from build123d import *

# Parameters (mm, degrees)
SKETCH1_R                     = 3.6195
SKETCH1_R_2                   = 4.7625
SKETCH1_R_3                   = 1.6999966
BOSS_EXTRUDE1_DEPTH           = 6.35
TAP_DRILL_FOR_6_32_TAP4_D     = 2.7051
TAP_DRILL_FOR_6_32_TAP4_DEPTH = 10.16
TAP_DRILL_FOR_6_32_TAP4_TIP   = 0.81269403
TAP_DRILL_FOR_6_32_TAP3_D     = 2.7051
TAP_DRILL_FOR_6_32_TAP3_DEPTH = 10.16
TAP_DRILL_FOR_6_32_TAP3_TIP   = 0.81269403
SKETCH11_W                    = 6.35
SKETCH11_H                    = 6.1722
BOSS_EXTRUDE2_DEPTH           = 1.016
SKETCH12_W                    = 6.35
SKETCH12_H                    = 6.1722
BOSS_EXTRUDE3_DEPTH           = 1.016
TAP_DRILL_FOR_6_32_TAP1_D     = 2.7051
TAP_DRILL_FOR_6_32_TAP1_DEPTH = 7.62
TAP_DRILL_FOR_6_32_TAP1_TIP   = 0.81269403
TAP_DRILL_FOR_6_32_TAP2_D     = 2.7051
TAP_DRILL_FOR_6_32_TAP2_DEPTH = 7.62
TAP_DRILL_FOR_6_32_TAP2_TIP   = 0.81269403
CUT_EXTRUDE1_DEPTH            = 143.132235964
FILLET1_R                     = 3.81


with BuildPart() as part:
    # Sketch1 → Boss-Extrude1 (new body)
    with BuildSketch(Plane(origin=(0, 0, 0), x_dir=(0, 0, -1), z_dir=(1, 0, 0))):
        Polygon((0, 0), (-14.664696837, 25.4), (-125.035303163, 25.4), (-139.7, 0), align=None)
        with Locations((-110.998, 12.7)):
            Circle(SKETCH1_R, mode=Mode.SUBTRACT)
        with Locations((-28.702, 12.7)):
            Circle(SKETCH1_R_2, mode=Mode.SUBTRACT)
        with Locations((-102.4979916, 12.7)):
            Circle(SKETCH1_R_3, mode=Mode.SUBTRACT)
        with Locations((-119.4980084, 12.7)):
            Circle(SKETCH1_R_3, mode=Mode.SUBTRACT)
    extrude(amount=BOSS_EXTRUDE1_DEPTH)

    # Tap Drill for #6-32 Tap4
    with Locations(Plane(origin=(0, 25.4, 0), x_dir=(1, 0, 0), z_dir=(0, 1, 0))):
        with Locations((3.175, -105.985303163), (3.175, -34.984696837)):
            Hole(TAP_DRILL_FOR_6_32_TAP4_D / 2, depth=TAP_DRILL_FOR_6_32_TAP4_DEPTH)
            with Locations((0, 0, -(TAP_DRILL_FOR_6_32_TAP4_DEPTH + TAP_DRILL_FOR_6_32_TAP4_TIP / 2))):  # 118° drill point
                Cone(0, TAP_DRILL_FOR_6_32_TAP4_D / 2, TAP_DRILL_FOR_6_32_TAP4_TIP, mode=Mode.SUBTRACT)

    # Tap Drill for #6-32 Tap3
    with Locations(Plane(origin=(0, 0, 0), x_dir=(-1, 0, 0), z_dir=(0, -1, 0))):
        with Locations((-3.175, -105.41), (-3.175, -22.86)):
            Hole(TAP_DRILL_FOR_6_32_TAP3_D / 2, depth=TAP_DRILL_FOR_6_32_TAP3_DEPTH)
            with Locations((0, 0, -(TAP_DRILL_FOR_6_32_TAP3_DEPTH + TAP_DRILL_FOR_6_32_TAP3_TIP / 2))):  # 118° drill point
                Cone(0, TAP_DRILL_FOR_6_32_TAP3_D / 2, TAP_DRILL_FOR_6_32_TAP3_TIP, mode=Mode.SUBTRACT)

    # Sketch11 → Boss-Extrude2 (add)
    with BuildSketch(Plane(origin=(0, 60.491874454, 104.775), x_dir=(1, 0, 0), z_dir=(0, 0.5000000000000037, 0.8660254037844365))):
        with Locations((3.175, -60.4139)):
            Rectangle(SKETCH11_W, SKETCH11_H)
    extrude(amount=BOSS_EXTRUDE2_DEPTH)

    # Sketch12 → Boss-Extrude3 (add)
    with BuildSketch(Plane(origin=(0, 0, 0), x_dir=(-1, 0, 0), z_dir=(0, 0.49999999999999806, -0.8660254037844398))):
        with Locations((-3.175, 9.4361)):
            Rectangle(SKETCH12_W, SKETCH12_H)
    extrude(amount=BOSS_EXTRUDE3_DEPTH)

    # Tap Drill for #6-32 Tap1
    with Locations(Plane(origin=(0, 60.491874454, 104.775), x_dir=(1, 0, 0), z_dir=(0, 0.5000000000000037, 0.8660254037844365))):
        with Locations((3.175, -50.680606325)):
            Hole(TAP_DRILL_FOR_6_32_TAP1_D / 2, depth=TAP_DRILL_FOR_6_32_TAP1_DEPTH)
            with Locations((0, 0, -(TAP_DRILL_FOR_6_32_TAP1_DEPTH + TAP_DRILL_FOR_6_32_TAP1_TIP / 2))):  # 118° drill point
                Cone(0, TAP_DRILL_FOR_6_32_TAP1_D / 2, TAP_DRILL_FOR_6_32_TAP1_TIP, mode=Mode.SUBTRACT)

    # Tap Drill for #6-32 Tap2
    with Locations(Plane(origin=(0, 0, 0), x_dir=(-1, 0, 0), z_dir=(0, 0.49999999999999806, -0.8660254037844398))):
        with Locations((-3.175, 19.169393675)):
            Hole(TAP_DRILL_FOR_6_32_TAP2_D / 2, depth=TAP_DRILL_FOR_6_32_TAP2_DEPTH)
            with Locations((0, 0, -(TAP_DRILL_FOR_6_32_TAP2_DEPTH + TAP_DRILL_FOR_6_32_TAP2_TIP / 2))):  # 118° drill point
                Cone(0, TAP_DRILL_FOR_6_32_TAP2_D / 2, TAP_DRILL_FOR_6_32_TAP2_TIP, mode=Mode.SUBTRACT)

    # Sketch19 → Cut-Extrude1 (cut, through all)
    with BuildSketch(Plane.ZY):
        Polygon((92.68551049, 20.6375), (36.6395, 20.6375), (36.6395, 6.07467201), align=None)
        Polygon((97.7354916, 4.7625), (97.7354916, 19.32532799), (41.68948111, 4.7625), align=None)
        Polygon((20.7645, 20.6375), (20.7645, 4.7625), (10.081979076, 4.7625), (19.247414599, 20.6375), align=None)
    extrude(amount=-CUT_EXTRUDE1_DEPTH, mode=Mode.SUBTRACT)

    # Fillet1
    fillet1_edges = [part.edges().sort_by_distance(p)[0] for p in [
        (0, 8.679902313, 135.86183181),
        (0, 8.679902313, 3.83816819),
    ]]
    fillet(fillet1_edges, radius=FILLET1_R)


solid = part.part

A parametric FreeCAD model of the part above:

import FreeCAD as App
import Part
import Sketcher

V = App.Vector
Q = App.Units.Quantity


def edges_at(feature, points):
    """Names of the edges that pass closest to the given points."""
    edges = feature.Shape.Edges
    near = lambda p: min(range(len(edges)), key=lambda i: edges[i].distToShape(Part.Vertex(*p))[0])
    return sorted({f"Edge{near(p) + 1}" for p in points})


def add_polygon(sketch, points):
    """Adds a closed chain of lines whose ends are joined by coincident constraints."""
    first, n = sketch.GeometryCount, len(points)
    for a, b in zip(points, points[1:] + points[:1]):
        sketch.addGeometry(Part.LineSegment(App.Vector(*a, 0), App.Vector(*b, 0)), False)
    for i in range(n):
        sketch.addConstraint(Sketcher.Constraint("Coincident", first + i, 2, first + (i + 1) % n, 1))

doc = App.newDocument("Part")
params = doc.addObject("Spreadsheet::Sheet", "Params")
for row, (alias, value) in enumerate([
    ("sketch1_diameter", "0.285 in"),
    ("sketch1_diameter2", "0.375 in"),
    ("sketch1_height", "5.5 in"),
    ("pad1_length", "0.25 in"),
    ("hole_diameter", "0.1065 in"),
    ("hole_depth", "0.4 in"),
    ("hole2_diameter", "0.1065 in"),
    ("hole2_depth", "0.4 in"),
    ("sketch4_width", "0.25 in"),
    ("sketch4_height", "0.243 in"),
    ("pad2_length", "0.04 in"),
    ("sketch5_width", "0.25 in"),
    ("sketch5_height", "0.243 in"),
    ("pad3_length", "0.04 in"),
    ("hole3_diameter", "0.1065 in"),
    ("hole3_depth", "0.3 in"),
    ("hole4_diameter", "0.1065 in"),
    ("hole4_depth", "0.3 in"),
    ("sketch8_width", "0.625 in"),
    ("fillet_radius", "0.15 in"),
], start=1):
    params.set(f"A{row}", alias)
    params.set(f"B{row}", "=" + value)
    params.setAlias(f"B{row}", alias)

body = doc.addObject("PartDesign::Body", "Body")

# Sketch on YZ plane
sketch1 = body.newObject("Sketcher::SketchObject", "Sketch")
sketch1.AttachmentSupport = (doc.getObject("YZ_Plane"), [""])
sketch1.MapMode = "FlatFace"
add_polygon(sketch1, [(0, 0), (25.4, 14.664697), (25.4, 125.035303), (0, 139.7)])  # lines 0-3
sketch1.addGeometry(Part.Circle(V(12.7, 119.498008, 0), V(0, 0, 1), 1.699997), False)  # 4
sketch1.addGeometry(Part.Circle(V(12.7, 110.998, 0), V(0, 0, 1), 3.6195), False)  # 5
sketch1.addGeometry(Part.Circle(V(12.7, 102.497992, 0), V(0, 0, 1), 1.699997), False)  # 6
sketch1.addGeometry(Part.Circle(V(12.7, 28.702, 0), V(0, 0, 1), 4.7625), False)  # 7
sketch1.addConstraint(Sketcher.Constraint("Vertical", 1))
sketch1.addConstraint(Sketcher.Constraint("Vertical", 3))
sketch1.addConstraint(Sketcher.Constraint("Coincident", 3, 2, -1, 1))
sketch1.addConstraint(Sketcher.Constraint("Equal", 4, 6))
sketch1.addConstraint(Sketcher.Constraint("Vertical", 4, 3, 5, 3))
sketch1.addConstraint(Sketcher.Constraint("Vertical", 5, 3, 6, 3))
sketch1.addConstraint(Sketcher.Constraint("Vertical", 6, 3, 7, 3))
sketch1.addConstraint(Sketcher.Constraint("Equal", 0, 2))
sketch1.addConstraint(Sketcher.Constraint("Diameter", 5, Q("0.285 in")))
sketch1.addConstraint(Sketcher.Constraint("Diameter", 7, Q("0.375 in")))
sketch1.addConstraint(Sketcher.Constraint("DistanceY", 3, 2, 3, 1, Q("5.5 in")))
sketch1.addConstraint(Sketcher.Constraint("DistanceX", -1, 1, 0, 2, Q("1 in")))
sketch1.addConstraint(Sketcher.Constraint("Angle", 0, Q("30 deg")))
sketch1.addConstraint(Sketcher.Constraint("DistanceX", -1, 1, 4, 3, Q("0.5 in")))
sketch1.addConstraint(Sketcher.Constraint("DistanceY", -1, 1, 5, 3, Q("4.37 in")))
sketch1.addConstraint(Sketcher.Constraint("DistanceY", -1, 1, 7, 3, Q("1.13 in")))
sketch1.addConstraint(Sketcher.Constraint("Diameter", 4, Q("3.399993 mm")))
sketch1.addConstraint(Sketcher.Constraint("DistanceY", -1, 1, 4, 3, Q("119.498008 mm")))
sketch1.addConstraint(Sketcher.Constraint("DistanceY", -1, 1, 6, 3, Q("102.497992 mm")))
sketch1.setExpression("Constraints[12]", "Params.sketch1_diameter")
sketch1.setExpression("Constraints[13]", "Params.sketch1_diameter2")
sketch1.setExpression("Constraints[14]", "Params.sketch1_height")
pad1 = body.newObject("PartDesign::Pad", "Pad")
pad1.Profile = sketch1
pad1.setExpression("Length", "Params.pad1_length")

# Sketch on XZ plane
sketch2 = body.newObject("Sketcher::SketchObject", "Sketch001")
sketch2.AttachmentSupport = (doc.getObject("XZ_Plane"), [""])
sketch2.MapMode = "FlatFace"
sketch2.AttachmentOffset = App.Placement(V(0, 0, -1 * 25.4), App.Rotation())
sketch2.addGeometry(Part.Circle(V(3.175, 105.985303, 0), V(0, 0, 1), 1.35255), False)
sketch2.addGeometry(Part.Circle(V(3.175, 34.984697, 0), V(0, 0, 1), 1.35255), False)
sketch2.addConstraint(Sketcher.Constraint("Equal", 0, 1))
sketch2.addConstraint(Sketcher.Constraint("Vertical", 0, 3, 1, 3))
sketch2.addConstraint(Sketcher.Constraint("Diameter", 0, Q("0.1065 in")))
sketch2.addConstraint(Sketcher.Constraint("DistanceX", -1, 1, 0, 3, Q("0.125 in")))
sketch2.addConstraint(Sketcher.Constraint("DistanceY", -1, 1, 0, 3, Q("105.985303 mm")))
sketch2.addConstraint(Sketcher.Constraint("DistanceY", -1, 1, 1, 3, Q("34.984697 mm")))
doc.recompute()
hole = body.newObject("PartDesign::Hole", "Hole")
hole.Profile = sketch2
hole.ThreadType = "None"
hole.setExpression("Diameter", "Params.hole_diameter")
hole.DepthType = "Dimension"
hole.setExpression("Depth", "Params.hole_depth")
hole.DrillPoint = "Angled"
hole.DrillPointAngle = 118
hole.Reversed = True

# Sketch on XZ plane
sketch3 = body.newObject("Sketcher::SketchObject", "Sketch002")
sketch3.AttachmentSupport = (doc.getObject("XZ_Plane"), [""])
sketch3.MapMode = "FlatFace"
sketch3.addGeometry(Part.Circle(V(3.175, 105.41, 0), V(0, 0, 1), 1.35255), False)
sketch3.addGeometry(Part.Circle(V(3.175, 22.86, 0), V(0, 0, 1), 1.35255), False)
sketch3.addConstraint(Sketcher.Constraint("Equal", 0, 1))
sketch3.addConstraint(Sketcher.Constraint("Vertical", 0, 3, 1, 3))
sketch3.addConstraint(Sketcher.Constraint("Diameter", 0, Q("0.1065 in")))
sketch3.addConstraint(Sketcher.Constraint("DistanceY", -1, 1, 1, 3, Q("0.9 in")))
sketch3.addConstraint(Sketcher.Constraint("DistanceY", -1, 1, 0, 3, Q("4.15 in")))
sketch3.addConstraint(Sketcher.Constraint("DistanceX", -1, 1, 0, 3, Q("0.125 in")))
doc.recompute()
hole2 = body.newObject("PartDesign::Hole", "Hole001")
hole2.Profile = sketch3
hole2.ThreadType = "None"
hole2.setExpression("Diameter", "Params.hole2_diameter")
hole2.DepthType = "Dimension"
hole2.setExpression("Depth", "Params.hole2_depth")
hole2.DrillPoint = "Angled"
hole2.DrillPointAngle = 118

# Sketch on an angled plane
sketch4 = body.newObject("Sketcher::SketchObject", "Sketch003")
sketch4.Placement = App.Placement(V(0, 60.491874, 104.775), App.Rotation(V(1, 0, 0), V(0, 0.866025404, -0.5), V(0, 0.5, 0.866025404), "ZXY"))
add_polygon(sketch4, [(0, -57.3278), (0, -63.5), (6.35, -63.5), (6.35, -57.3278)])  # lines 0-3
sketch4.addConstraint(Sketcher.Constraint("Vertical", 0))
sketch4.addConstraint(Sketcher.Constraint("Horizontal", 1))
sketch4.addConstraint(Sketcher.Constraint("Vertical", 2))
sketch4.addConstraint(Sketcher.Constraint("Horizontal", 3))
sketch4.addConstraint(Sketcher.Constraint("PointOnObject", 0, 2, -2))
sketch4.addConstraint(Sketcher.Constraint("DistanceX", 1, 1, 1, 2, Q("0.25 in")))
sketch4.addConstraint(Sketcher.Constraint("DistanceY", 0, 2, -1, 1, Q("2.5 in")))
sketch4.addConstraint(Sketcher.Constraint("DistanceY", 0, 2, 0, 1, Q("0.243 in")))
sketch4.setExpression("Constraints[9]", "Params.sketch4_width")
sketch4.setExpression("Constraints[11]", "Params.sketch4_height")
pad2 = body.newObject("PartDesign::Pad", "Pad001")
pad2.Profile = sketch4
pad2.setExpression("Length", "Params.pad2_length")

# Sketch on an angled plane
sketch5 = body.newObject("Sketcher::SketchObject", "Sketch004")
sketch5.Placement = App.Placement(V(0, 0, 0), App.Rotation(V(-1, 0, 0), V(0, 0.866025404, 0.5), V(0, 0.5, -0.866025404), "ZXY"))
add_polygon(sketch5, [(-6.35, 12.5222), (-6.35, 6.35), (0, 6.35), (0, 12.5222)])  # lines 0-3
sketch5.addConstraint(Sketcher.Constraint("Vertical", 0))
sketch5.addConstraint(Sketcher.Constraint("Horizontal", 1))
sketch5.addConstraint(Sketcher.Constraint("Vertical", 2))
sketch5.addConstraint(Sketcher.Constraint("Horizontal", 3))
sketch5.addConstraint(Sketcher.Constraint("PointOnObject", 1, 2, -2))
sketch5.addConstraint(Sketcher.Constraint("DistanceX", 1, 1, 1, 2, Q("0.25 in")))
sketch5.addConstraint(Sketcher.Constraint("DistanceY", 0, 2, 0, 1, Q("0.243 in")))
sketch5.addConstraint(Sketcher.Constraint("DistanceY", -1, 1, 0, 2, Q("0.25 in")))
sketch5.setExpression("Constraints[9]", "Params.sketch5_width")
sketch5.setExpression("Constraints[10]", "Params.sketch5_height")
pad3 = body.newObject("PartDesign::Pad", "Pad002")
pad3.Profile = sketch5
pad3.setExpression("Length", "Params.pad3_length")

# Sketch on an angled plane
sketch6 = body.newObject("Sketcher::SketchObject", "Sketch005")
sketch6.Placement = App.Placement(V(0, 60.491874, 104.775), App.Rotation(V(1, 0, 0), V(0, 0.866025404, -0.5), V(0, 0.5, 0.866025404), "ZXY"))
sketch6.addGeometry(Part.Circle(V(3.175, -50.680606, 0), V(0, 0, 1), 1.35255), False)
sketch6.addConstraint(Sketcher.Constraint("Diameter", 0, Q("0.1065 in")))
sketch6.addConstraint(Sketcher.Constraint("DistanceX", -1, 1, 0, 3, Q("0.125 in")))
sketch6.addConstraint(Sketcher.Constraint("DistanceY", 0, 3, -1, 1, Q("50.680606 mm")))
doc.recompute()
hole3 = body.newObject("PartDesign::Hole", "Hole002")
hole3.Profile = sketch6
hole3.ThreadType = "None"
hole3.setExpression("Diameter", "Params.hole3_diameter")
hole3.DepthType = "Dimension"
hole3.setExpression("Depth", "Params.hole3_depth")
hole3.DrillPoint = "Angled"
hole3.DrillPointAngle = 118

# Sketch on an angled plane
sketch7 = body.newObject("Sketcher::SketchObject", "Sketch006")
sketch7.Placement = App.Placement(V(0, 0, 0), App.Rotation(V(-1, 0, 0), V(0, 0.866025404, 0.5), V(0, 0.5, -0.866025404), "ZXY"))
sketch7.addGeometry(Part.Circle(V(-3.175, 19.169394, 0), V(0, 0, 1), 1.35255), False)
sketch7.addConstraint(Sketcher.Constraint("Diameter", 0, Q("0.1065 in")))
sketch7.addConstraint(Sketcher.Constraint("DistanceX", 0, 3, -1, 1, Q("0.125 in")))
sketch7.addConstraint(Sketcher.Constraint("DistanceY", -1, 1, 0, 3, Q("19.169394 mm")))
doc.recompute()
hole4 = body.newObject("PartDesign::Hole", "Hole003")
hole4.Profile = sketch7
hole4.ThreadType = "None"
hole4.setExpression("Diameter", "Params.hole4_diameter")
hole4.DepthType = "Dimension"
hole4.setExpression("Depth", "Params.hole4_depth")
hole4.DrillPoint = "Angled"
hole4.DrillPointAngle = 118

# Sketch on YZ plane
sketch8 = body.newObject("Sketcher::SketchObject", "Sketch007")
sketch8.AttachmentSupport = (doc.getObject("YZ_Plane"), [""])
sketch8.MapMode = "FlatFace"
add_polygon(sketch8, [(20.6375, 92.68551), (20.6375, 36.6395), (6.074672, 36.6395)])  # lines 0-2
add_polygon(sketch8, [(4.7625, 97.735492), (19.325328, 97.735492), (4.7625, 41.689481)])  # lines 3-5
add_polygon(sketch8, [(4.7625, 20.7645), (20.6375, 20.7645), (20.6375, 19.247415), (4.7625, 10.081979)])  # lines 6-9
sketch8.addConstraint(Sketcher.Constraint("Vertical", 0))
sketch8.addConstraint(Sketcher.Constraint("Horizontal", 1))
sketch8.addConstraint(Sketcher.Constraint("Horizontal", 3))
sketch8.addConstraint(Sketcher.Constraint("Vertical", 5))
sketch8.addConstraint(Sketcher.Constraint("Horizontal", 6))
sketch8.addConstraint(Sketcher.Constraint("Vertical", 7))
sketch8.addConstraint(Sketcher.Constraint("Vertical", 9))
sketch8.addConstraint(Sketcher.Constraint("Parallel", 2, 4))
sketch8.addConstraint(Sketcher.Constraint("Vertical", 2, 2, 6, 2))
sketch8.addConstraint(Sketcher.Constraint("Vertical", 5, 2, 8, 2))
sketch8.addConstraint(Sketcher.Constraint("Equal", 1, 3))
sketch8.addConstraint(Sketcher.Constraint("Angle", 8, Q("-150 deg")))
sketch8.addConstraint(Sketcher.Constraint("DistanceX", 6, 1, 6, 2, Q("0.625 in")))
sketch8.addConstraint(Sketcher.Constraint("DistanceX", -1, 1, 0, 2, Q("0.8125 in")))
sketch8.addConstraint(Sketcher.Constraint("DistanceY", 6, 2, 0, 2, Q("0.625 in")))
sketch8.addConstraint(Sketcher.Constraint("DistanceY", -1, 1, 0, 2, Q("1.4425 in")))
sketch8.addConstraint(Sketcher.Constraint("DistanceY", 0, 2, 0, 1, Q("56.04601 mm")))
sketch8.addConstraint(Sketcher.Constraint("DistanceY", 9, 1, 9, 2, Q("10.682521 mm")))
sketch8.addConstraint(Sketcher.Constraint("Distance", 2, Q("57.907092 mm")))
sketch8.addConstraint(Sketcher.Constraint("DistanceY", -1, 1, 3, 2, Q("97.735492 mm")))
sketch8.setExpression("Constraints[22]", "Params.sketch8_width")
pocket1 = body.newObject("PartDesign::Pocket", "Pocket")
pocket1.Profile = sketch8
pocket1.Type = "ThroughAll"
pocket1.Reversed = True
doc.recompute()

fillet = body.newObject("PartDesign::Fillet", "Fillet")
fillet.Base = (pocket1, edges_at(pocket1, [(0, 8.68, 135.862), (0, 8.68, 3.838)]))
fillet.setExpression("Radius", "Params.fillet_radius")

doc.recompute()
